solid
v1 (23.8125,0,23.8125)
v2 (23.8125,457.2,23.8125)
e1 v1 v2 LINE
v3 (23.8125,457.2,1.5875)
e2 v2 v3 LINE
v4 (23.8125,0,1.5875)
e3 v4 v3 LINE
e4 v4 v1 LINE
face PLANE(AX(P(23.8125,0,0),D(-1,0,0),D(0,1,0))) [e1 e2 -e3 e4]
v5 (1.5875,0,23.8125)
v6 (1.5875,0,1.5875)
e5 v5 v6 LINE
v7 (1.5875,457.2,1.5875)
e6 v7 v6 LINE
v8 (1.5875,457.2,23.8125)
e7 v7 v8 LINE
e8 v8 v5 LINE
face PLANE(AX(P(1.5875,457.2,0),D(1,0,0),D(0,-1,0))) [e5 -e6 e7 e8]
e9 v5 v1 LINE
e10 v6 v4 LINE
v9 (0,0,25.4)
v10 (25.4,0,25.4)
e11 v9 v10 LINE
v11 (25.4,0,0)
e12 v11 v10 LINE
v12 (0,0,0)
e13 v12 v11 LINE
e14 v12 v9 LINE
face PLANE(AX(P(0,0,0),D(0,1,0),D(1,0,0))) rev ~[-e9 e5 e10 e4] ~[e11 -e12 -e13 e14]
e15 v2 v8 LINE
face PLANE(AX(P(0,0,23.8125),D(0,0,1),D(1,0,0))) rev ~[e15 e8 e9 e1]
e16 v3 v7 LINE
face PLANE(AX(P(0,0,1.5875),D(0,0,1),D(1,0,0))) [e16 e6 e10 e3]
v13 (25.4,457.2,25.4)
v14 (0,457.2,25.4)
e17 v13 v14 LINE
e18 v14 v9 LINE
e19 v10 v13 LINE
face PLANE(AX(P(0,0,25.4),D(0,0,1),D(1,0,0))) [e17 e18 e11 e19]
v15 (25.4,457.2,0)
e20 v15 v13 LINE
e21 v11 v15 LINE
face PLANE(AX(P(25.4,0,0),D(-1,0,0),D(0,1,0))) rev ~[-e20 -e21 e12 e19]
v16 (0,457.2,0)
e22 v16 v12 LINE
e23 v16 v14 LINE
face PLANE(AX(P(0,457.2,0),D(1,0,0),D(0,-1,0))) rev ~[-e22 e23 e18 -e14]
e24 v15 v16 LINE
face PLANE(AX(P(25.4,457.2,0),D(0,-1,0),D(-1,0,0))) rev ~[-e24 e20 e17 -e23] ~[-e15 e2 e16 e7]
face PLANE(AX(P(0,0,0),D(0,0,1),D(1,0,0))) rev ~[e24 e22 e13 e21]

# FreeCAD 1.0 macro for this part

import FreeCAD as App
import Part
import Sketcher
Q = App.Units.Quantity


def faces_at(feature, points):
    """Names of the faces that lie closest to the given points."""
    faces = feature.Shape.Faces
    near = lambda p: min(range(len(faces)), key=lambda i: faces[i].distToShape(Part.Vertex(*p))[0])
    return sorted({f"Face{near(p) + 1}" for p in points})


def add_polygon(sketch, points):
    """Adds a closed chain of lines whose ends are joined by coincident constraints."""
    first, n = sketch.GeometryCount, len(points)
    for a, b in zip(points, points[1:] + points[:1]):
        sketch.addGeometry(Part.LineSegment(App.Vector(*a, 0), App.Vector(*b, 0)), False)
    for i in range(n):
        sketch.addConstraint(Sketcher.Constraint("Coincident", first + i, 2, first + (i + 1) % n, 1))

doc = App.newDocument("Part")
body = doc.addObject("PartDesign::Body", "Body")

# Sketch on XY plane
sketch1 = body.newObject("Sketcher::SketchObject", "Sketch")
sketch1.AttachmentSupport = (doc.getObject("XY_Plane"), [""])
sketch1.MapMode = "FlatFace"
add_polygon(sketch1, [(0, 457), (0, 0), (25, 0), (25, 457)])  # lines 0-3
sketch1.addConstraint([
    Sketcher.Constraint("Vertical", 0),
    Sketcher.Constraint("Horizontal", 1),
    Sketcher.Constraint("Vertical", 2),
    Sketcher.Constraint("Horizontal", 3),
    Sketcher.Constraint("Coincident", 0, 2, -1, 1),
    Sketcher.Constraint("DistanceX", 1, 1, 1, 2, Q("1 in")),
    Sketcher.Constraint("DistanceY", 0, 2, 0, 1, Q("18 in")),
])
pad1 = body.newObject("PartDesign::Pad", "Pad")
pad1.Profile = sketch1
pad1.Length = Q("1 in")
doc.recompute()

thickness = body.newObject("PartDesign::Thickness", "Thickness")
thickness.Base = (pad1, faces_at(pad1, [(16.933, 457.2, 8.467), (8.467, 0, 8.467)]))
thickness.Value = Q("0.0625 in")
thickness.Reversed = True
thickness.Join = "Intersection"

doc.recompute()
